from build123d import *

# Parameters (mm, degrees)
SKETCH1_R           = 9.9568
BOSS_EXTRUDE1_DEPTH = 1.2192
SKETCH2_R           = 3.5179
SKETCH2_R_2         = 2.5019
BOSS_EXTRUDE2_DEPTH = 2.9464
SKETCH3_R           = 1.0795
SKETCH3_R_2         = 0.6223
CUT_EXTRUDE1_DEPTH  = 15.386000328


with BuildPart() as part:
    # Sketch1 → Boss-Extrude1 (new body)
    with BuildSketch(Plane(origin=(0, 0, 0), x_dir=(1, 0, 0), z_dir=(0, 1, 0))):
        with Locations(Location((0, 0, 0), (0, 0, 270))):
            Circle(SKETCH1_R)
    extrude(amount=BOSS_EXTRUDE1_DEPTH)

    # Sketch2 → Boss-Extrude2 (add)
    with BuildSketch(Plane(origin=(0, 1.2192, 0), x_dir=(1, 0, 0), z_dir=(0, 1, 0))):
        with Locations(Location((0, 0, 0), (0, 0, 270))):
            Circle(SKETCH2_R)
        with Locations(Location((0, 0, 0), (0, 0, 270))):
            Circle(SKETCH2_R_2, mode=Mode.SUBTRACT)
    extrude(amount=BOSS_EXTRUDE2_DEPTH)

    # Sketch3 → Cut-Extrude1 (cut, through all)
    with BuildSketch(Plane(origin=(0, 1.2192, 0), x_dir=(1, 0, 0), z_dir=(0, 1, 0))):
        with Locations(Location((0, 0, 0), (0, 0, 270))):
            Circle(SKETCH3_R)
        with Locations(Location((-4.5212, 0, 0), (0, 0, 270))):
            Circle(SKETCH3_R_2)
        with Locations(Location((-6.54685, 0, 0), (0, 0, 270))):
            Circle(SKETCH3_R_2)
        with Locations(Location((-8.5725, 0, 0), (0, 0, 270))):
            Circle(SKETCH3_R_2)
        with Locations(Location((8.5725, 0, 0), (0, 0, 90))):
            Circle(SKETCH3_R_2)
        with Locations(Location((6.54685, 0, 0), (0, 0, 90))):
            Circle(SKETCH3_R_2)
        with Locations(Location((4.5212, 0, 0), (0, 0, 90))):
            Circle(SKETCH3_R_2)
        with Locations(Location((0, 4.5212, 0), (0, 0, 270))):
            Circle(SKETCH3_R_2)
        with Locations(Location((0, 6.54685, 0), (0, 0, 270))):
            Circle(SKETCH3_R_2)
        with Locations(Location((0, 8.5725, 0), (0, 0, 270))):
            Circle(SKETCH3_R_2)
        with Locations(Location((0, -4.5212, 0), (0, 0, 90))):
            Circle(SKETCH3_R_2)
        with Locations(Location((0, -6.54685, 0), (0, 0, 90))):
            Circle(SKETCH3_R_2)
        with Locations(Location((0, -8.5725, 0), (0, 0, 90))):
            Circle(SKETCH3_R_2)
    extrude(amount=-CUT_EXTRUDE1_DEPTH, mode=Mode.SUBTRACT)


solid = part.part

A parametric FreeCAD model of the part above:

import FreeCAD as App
import Part
import Sketcher
from FreeCAD import Vector
Q = App.Units.Quantity

doc = App.newDocument("Part")
body = doc.addObject("PartDesign::Body", "Body")

# Sketch on XZ plane
sketch1 = doc.addObject("Sketcher::SketchObject", "Sketch")
body.addObject(sketch1)
sketch1.AttachmentSupport = (doc.XZ_Plane, [""])
sketch1.MapMode = "FlatFace"
sketch1.addGeometry(Part.Circle(Vector(0, 0, 0), Vector(0, 0, 1), 10), False)
sketch1.addConstraint([
    Sketcher.Constraint("Coincident", 0, 3, -1, 1),
    Sketcher.Constraint("Diameter", 0, Q("0.784 in")),
])
pad1 = doc.addObject("PartDesign::Pad", "Pad")
body.addObject(pad1)
pad1.Profile = sketch1
pad1.Length = Q("0.048 in")
pad1.Reversed = True

# Sketch on XZ plane
sketch2 = doc.addObject("Sketcher::SketchObject", "Sketch001")
body.addObject(sketch2)
sketch2.AttachmentSupport = (doc.XZ_Plane, [""])
sketch2.MapMode = "FlatFace"
sketch2.AttachmentOffset = App.Placement(Vector(0, 0, -0.048 * 25.4), App.Rotation())
sketch2.addGeometry([
    Part.Circle(Vector(0, 0, 0), Vector(0, 0, 1), 3.5),
    Part.Circle(Vector(0, 0, 0), Vector(0, 0, 1), 2.5),
], False)
sketch2.addConstraint([
    Sketcher.Constraint("Coincident", 0, 3, -1, 1),
    Sketcher.Constraint("Coincident", 1, 3, -1, 1),
    Sketcher.Constraint("Diameter", 0, Q("0.277 in")),
    Sketcher.Constraint("Diameter", 1, Q("0.197 in")),
])
pad2 = doc.addObject("PartDesign::Pad", "Pad001")
body.addObject(pad2)
pad2.Profile = sketch2
pad2.Length = Q("0.116 in")
pad2.Reversed = True

# Sketch on XZ plane
sketch3 = doc.addObject("Sketcher::SketchObject", "Sketch002")
body.addObject(sketch3)
sketch3.AttachmentSupport = (doc.XZ_Plane, [""])
sketch3.MapMode = "FlatFace"
sketch3.AttachmentOffset = App.Placement(Vector(0, 0, -0.048 * 25.4), App.Rotation())
sketch3.addGeometry([
    Part.Circle(Vector(0, 0, 0), Vector(0, 0, 1), 1.1),  # 0
    Part.Circle(Vector(-4.5, 0, 0), Vector(0, 0, 1), 0.6),  # 1
    Part.Circle(Vector(-6.5, 0, 0), Vector(0, 0, 1), 0.6),  # 2
    Part.Circle(Vector(-8.6, 0, 0), Vector(0, 0, 1), 0.6),  # 3
    Part.Circle(Vector(8.6, 0, 0), Vector(0, 0, 1), 0.6),  # 4
    Part.Circle(Vector(6.5, 0, 0), Vector(0, 0, 1), 0.6),  # 5
    Part.Circle(Vector(4.5, 0, 0), Vector(0, 0, 1), 0.6),  # 6
    Part.Circle(Vector(0, -4.5, 0), Vector(0, 0, 1), 0.6),  # 7
    Part.Circle(Vector(0, -6.5, 0), Vector(0, 0, 1), 0.6),  # 8
    Part.Circle(Vector(0, -8.6, 0), Vector(0, 0, 1), 0.6),  # 9
    Part.Circle(Vector(0, 4.5, 0), Vector(0, 0, 1), 0.6),  # 10
    Part.Circle(Vector(0, 6.5, 0), Vector(0, 0, 1), 0.6),  # 11
    Part.Circle(Vector(0, 8.6, 0), Vector(0, 0, 1), 0.6),  # 12
], False)
sketch3.addConstraint([
    Sketcher.Constraint("Coincident", 0, 3, -1, 1),
    Sketcher.Constraint("Equal", 1, 2),
    Sketcher.Constraint("Equal", 2, 3),
    Sketcher.Constraint("Equal", 3, 4),
    Sketcher.Constraint("Equal", 4, 5),
    Sketcher.Constraint("Equal", 5, 6),
    Sketcher.Constraint("Equal", 6, 7),
    Sketcher.Constraint("Equal", 7, 8),
    Sketcher.Constraint("Equal", 8, 9),
    Sketcher.Constraint("Equal", 9, 10),
    Sketcher.Constraint("Equal", 10, 11),
    Sketcher.Constraint("Equal", 11, 12),
    Sketcher.Constraint("Symmetric", 3, 3, 4, 3, -1, 1),
    Sketcher.Constraint("Symmetric", 2, 3, 5, 3, -1, 1),
    Sketcher.Constraint("Symmetric", 1, 3, 6, 3, -1, 1),
    Sketcher.Constraint("Symmetric", 7, 3, 10, 3, -1, 1),
    Sketcher.Constraint("Symmetric", 8, 3, 11, 3, -1, 1),
    Sketcher.Constraint("Symmetric", 9, 3, 12, 3, -1, 1),
    Sketcher.Constraint("PointOnObject", 1, 3, -1),
    Sketcher.Constraint("PointOnObject", 2, 3, -1),
    Sketcher.Constraint("PointOnObject", 3, 3, -1),
    Sketcher.Constraint("PointOnObject", 7, 3, -2),
    Sketcher.Constraint("PointOnObject", 8, 3, -2),
    Sketcher.Constraint("PointOnObject", 9, 3, -2),
    Sketcher.Constraint("Diameter", 0, Q("0.085 in")),
    Sketcher.Constraint("Diameter", 1, Q("0.049 in")),
    Sketcher.Constraint("DistanceX", 1, 3, -1, 1, Q("0.178 in")),
    Sketcher.Constraint("DistanceY", 7, 3, -1, 1, Q("0.178 in")),
    Sketcher.Constraint("DistanceX", 3, 3, 4, 3, Q("0.675 in")),
    Sketcher.Constraint("DistanceY", 9, 3, -1, 1, Q("0.3375 in")),
    Sketcher.Constraint("DistanceX", 2, 3, 5, 3, Q("0.5155 in")),
    Sketcher.Constraint("DistanceY", 8, 3, -1, 1, Q("6.54685 mm")),
])
pocket1 = doc.addObject("PartDesign::Pocket", "Pocket")
body.addObject(pocket1)
pocket1.Profile = sketch3
pocket1.Type = "ThroughAll"
pocket1.Reversed = True

doc.recompute()
